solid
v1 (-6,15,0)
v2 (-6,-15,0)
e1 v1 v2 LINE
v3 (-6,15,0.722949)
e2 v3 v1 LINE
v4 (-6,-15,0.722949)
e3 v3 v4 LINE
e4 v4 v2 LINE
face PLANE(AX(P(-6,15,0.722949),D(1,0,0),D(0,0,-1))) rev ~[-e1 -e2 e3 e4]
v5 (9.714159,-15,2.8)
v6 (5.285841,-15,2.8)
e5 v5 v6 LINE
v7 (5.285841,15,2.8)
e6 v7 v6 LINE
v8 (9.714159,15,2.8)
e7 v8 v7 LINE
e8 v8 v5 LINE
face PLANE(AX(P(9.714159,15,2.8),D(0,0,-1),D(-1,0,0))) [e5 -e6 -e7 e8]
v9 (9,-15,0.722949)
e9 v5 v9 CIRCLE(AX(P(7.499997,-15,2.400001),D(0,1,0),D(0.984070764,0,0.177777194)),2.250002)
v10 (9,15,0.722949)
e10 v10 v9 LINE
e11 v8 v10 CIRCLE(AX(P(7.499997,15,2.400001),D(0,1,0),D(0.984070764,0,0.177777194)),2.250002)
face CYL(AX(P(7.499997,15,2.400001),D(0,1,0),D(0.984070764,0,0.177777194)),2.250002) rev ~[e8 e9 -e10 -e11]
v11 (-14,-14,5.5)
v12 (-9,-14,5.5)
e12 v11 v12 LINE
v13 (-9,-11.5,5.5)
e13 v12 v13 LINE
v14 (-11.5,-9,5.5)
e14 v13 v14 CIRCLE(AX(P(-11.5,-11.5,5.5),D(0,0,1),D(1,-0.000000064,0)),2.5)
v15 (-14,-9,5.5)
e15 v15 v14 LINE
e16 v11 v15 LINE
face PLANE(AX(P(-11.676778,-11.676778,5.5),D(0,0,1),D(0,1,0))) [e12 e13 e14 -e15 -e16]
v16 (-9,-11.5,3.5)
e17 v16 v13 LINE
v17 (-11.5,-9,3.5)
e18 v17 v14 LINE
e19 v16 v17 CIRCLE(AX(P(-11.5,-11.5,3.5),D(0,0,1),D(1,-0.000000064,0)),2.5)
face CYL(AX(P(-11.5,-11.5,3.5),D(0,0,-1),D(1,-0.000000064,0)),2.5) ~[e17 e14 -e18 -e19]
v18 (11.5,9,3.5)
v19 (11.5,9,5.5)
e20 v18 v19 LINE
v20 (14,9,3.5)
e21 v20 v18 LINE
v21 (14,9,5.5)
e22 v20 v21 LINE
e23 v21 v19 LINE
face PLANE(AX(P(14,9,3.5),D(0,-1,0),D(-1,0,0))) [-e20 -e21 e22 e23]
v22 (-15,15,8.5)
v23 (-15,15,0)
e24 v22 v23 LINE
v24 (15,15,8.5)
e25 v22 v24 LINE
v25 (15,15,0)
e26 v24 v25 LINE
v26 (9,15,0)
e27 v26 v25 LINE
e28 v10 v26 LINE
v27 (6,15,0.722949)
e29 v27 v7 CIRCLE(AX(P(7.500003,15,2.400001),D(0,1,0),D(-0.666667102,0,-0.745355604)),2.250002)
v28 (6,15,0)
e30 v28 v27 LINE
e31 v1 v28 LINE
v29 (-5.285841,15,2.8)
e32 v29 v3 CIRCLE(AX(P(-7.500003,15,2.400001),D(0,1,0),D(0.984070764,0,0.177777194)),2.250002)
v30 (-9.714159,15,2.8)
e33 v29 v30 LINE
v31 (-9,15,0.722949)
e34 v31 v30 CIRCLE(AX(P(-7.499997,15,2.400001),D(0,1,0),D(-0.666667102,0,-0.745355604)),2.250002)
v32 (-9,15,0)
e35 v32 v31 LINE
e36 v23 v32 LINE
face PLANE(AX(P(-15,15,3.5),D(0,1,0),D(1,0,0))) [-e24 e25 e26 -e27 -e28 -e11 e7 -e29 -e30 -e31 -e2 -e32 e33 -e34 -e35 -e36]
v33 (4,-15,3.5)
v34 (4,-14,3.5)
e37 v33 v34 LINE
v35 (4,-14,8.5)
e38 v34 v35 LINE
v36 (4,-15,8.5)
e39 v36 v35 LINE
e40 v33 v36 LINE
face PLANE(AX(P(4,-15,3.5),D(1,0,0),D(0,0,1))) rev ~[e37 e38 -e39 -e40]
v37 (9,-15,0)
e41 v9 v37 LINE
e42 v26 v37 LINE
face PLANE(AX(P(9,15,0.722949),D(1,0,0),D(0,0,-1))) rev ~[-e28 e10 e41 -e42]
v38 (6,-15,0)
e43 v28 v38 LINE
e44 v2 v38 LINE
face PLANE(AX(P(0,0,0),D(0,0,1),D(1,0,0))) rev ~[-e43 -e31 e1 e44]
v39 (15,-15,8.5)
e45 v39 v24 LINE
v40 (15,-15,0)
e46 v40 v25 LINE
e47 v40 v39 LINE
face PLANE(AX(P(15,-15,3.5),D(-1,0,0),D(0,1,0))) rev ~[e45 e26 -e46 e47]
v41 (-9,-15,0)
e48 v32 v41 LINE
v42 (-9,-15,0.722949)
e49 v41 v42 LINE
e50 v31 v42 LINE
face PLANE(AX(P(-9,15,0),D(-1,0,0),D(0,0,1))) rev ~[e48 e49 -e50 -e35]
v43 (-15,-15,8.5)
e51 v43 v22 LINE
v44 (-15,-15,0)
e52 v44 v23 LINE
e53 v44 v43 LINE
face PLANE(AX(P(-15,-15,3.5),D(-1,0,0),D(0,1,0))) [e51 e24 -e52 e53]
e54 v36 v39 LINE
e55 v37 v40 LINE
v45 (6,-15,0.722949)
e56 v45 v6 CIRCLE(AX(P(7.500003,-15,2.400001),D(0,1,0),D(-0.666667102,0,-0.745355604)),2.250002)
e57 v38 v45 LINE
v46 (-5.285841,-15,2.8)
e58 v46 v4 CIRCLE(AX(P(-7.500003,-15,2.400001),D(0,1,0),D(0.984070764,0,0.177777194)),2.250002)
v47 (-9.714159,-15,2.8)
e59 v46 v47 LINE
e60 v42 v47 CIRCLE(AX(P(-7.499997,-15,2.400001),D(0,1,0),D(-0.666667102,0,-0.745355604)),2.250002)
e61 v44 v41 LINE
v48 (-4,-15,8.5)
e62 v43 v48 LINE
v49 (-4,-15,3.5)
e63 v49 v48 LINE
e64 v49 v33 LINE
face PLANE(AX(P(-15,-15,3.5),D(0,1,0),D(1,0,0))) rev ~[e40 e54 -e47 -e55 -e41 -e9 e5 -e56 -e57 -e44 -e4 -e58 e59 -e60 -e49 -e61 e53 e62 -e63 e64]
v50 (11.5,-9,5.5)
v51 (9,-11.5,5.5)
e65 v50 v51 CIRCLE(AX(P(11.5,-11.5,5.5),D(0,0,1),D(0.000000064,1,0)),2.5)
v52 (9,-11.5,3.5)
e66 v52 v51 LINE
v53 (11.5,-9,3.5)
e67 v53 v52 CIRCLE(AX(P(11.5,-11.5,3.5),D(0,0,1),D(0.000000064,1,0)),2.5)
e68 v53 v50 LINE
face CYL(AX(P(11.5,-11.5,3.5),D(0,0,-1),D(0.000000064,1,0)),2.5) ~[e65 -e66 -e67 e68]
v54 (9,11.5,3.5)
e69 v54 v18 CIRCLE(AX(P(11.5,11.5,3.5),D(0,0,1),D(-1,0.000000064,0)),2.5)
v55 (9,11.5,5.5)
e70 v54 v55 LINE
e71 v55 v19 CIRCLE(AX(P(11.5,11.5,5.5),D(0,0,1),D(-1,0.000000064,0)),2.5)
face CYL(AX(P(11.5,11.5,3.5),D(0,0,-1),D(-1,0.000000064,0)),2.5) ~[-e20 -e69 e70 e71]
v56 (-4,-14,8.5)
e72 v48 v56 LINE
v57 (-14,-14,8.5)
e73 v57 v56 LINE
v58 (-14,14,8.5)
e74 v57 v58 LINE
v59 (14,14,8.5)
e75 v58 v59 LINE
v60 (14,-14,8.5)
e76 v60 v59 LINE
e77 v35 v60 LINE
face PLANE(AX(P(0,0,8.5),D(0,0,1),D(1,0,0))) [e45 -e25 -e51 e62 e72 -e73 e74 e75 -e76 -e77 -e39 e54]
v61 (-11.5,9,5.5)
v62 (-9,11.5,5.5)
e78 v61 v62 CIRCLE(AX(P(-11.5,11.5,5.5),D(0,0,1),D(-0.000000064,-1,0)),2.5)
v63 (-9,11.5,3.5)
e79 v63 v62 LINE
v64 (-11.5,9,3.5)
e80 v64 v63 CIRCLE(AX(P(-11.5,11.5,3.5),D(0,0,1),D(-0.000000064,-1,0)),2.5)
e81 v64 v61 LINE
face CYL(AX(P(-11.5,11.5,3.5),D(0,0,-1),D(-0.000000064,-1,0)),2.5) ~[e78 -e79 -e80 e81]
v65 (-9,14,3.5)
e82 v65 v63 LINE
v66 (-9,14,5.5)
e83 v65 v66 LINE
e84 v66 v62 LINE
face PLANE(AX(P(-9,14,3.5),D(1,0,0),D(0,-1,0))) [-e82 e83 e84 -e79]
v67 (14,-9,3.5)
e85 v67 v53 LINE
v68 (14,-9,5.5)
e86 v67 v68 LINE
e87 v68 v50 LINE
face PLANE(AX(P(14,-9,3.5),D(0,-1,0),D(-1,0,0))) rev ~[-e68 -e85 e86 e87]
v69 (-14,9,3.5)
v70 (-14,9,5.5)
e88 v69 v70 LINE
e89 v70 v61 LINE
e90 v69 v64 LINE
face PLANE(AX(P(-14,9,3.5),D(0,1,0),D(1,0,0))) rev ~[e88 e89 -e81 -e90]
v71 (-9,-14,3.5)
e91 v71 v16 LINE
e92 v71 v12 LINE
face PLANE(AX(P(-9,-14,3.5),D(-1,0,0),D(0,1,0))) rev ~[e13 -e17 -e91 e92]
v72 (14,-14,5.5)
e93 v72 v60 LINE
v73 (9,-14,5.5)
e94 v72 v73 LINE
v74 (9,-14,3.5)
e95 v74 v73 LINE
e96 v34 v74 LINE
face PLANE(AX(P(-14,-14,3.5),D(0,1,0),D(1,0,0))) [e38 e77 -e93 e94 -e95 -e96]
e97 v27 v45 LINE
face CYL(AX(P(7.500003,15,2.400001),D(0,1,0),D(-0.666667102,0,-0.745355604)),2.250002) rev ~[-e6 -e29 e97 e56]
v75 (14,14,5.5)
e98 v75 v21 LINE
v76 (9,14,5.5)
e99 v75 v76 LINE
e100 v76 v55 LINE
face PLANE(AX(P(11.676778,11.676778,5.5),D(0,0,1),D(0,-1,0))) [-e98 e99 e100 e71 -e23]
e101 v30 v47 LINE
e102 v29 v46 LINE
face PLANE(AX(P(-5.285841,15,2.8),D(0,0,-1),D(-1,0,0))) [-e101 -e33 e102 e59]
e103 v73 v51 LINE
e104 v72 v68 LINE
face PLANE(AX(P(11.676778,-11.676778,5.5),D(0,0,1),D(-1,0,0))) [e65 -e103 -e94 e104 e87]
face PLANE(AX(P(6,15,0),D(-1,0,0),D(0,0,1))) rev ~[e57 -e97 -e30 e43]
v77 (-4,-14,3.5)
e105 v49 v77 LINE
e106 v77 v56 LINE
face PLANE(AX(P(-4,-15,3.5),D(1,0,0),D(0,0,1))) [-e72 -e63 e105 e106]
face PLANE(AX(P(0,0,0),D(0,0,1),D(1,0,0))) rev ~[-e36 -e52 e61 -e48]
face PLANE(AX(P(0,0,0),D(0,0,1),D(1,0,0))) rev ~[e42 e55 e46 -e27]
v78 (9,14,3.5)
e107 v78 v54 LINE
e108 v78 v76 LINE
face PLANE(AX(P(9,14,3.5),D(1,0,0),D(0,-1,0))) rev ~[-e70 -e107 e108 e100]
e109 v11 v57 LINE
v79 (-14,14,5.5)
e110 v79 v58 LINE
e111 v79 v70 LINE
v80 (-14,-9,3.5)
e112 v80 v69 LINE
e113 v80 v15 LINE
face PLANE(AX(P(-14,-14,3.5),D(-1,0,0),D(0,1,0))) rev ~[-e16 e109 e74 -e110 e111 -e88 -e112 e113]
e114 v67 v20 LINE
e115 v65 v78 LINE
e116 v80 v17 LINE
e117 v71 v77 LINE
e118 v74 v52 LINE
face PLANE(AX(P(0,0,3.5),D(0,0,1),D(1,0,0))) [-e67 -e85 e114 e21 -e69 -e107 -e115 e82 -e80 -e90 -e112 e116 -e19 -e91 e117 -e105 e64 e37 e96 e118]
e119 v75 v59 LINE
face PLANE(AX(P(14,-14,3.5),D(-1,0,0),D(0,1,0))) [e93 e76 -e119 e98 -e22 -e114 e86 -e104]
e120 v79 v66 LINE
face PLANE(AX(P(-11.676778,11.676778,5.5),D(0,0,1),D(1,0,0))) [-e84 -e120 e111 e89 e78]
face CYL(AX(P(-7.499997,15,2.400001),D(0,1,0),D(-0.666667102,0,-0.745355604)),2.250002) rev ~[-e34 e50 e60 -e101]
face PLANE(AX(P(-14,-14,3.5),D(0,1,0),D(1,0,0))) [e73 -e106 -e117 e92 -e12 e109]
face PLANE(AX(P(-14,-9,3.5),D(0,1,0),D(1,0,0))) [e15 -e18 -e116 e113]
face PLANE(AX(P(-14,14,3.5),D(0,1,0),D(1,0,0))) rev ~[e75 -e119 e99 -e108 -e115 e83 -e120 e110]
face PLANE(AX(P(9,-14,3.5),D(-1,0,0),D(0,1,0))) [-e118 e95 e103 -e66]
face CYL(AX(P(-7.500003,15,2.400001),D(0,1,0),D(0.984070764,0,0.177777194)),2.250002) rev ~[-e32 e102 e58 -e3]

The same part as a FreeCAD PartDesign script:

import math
import FreeCAD as App
import Part
import Sketcher

V = App.Vector

doc = App.newDocument("Part")
body = doc.addObject("PartDesign::Body", "Body")

sketch1 = body.newObject("Sketcher::SketchObject", "Sketch")
sketch1.AttachmentSupport = (doc.getObject("XY_Plane"), [""])
sketch1.MapMode = "FlatFace"
sketch1.addGeometry([
    Part.LineSegment(V(-15, 15, 0), V(-15, -15, 0)),
    Part.LineSegment(V(-15, -15, 0), V(15, -15, 0)),
    Part.LineSegment(V(15, -15, 0), V(15, 15, 0)),
    Part.LineSegment(V(15, 15, 0), V(-15, 15, 0)),
], False)
sketch1.addConstraint([
    Sketcher.Constraint("Coincident", 0, 2, 1, 1),
    Sketcher.Constraint("Coincident", 1, 2, 2, 1),
    Sketcher.Constraint("Coincident", 2, 2, 3, 1),
    Sketcher.Constraint("Coincident", 3, 2, 0, 1),
    Sketcher.Constraint("Vertical", 0),
    Sketcher.Constraint("Horizontal", 1),
    Sketcher.Constraint("Vertical", 2),
    Sketcher.Constraint("Horizontal", 3),
    Sketcher.Constraint("Symmetric", 0, 2, 2, 2, -1, 1),
    Sketcher.Constraint("Equal", 3, 0),
    Sketcher.Constraint("DistanceX", 1, 1, 1, 2, 30.0),
])
pad1 = body.newObject("PartDesign::Pad", "Pad")
pad1.Profile = sketch1
pad1.Length = 3.5

sketch2 = body.newObject("Sketcher::SketchObject", "Sketch001")
sketch2.AttachmentSupport = (doc.getObject("XZ_Plane"), [""])
sketch2.MapMode = "FlatFace"
sketch2.AttachmentOffset = App.Placement(V(0, 0, -15), App.Rotation())
sketch2.addGeometry([
    Part.LineSegment(V(9, 0.722949, 0), V(9, 0, 0)),
    Part.LineSegment(V(9, 0, 0), V(6, 0, 0)),
    Part.LineSegment(V(6, 0, 0), V(6, 0.722949, 0)),
    Part.ArcOfCircle(Part.Circle(V(7.500003, 2.400001, 0), V(0, 0, 1), 2.250002), math.radians(169.759686), math.radians(228.189652)),
    Part.LineSegment(V(5.285841, 2.8, 0), V(9.714159, 2.8, 0)),
    Part.ArcOfCircle(Part.Circle(V(7.499997, 2.400001, 0), V(0, 0, 1), 2.250002), math.radians(-48.189652), math.radians(10.240314)),
], False)
sketch2.addConstraint([
    Sketcher.Constraint("Coincident", 0, 2, 1, 1),
    Sketcher.Constraint("Coincident", 1, 2, 2, 1),
    Sketcher.Constraint("Coincident", 2, 2, 3, 2),
    Sketcher.Constraint("Coincident", 3, 1, 4, 1),
    Sketcher.Constraint("Coincident", 4, 2, 5, 2),
    Sketcher.Constraint("Coincident", 5, 1, 0, 1),
    Sketcher.Constraint("Vertical", 0),
    Sketcher.Constraint("Horizontal", 1),
    Sketcher.Constraint("Vertical", 2),
    Sketcher.Constraint("Horizontal", 4),
    Sketcher.Constraint("Coincident", 5, 3, 3, 3),
    Sketcher.Constraint("Equal", 3, 5),
    Sketcher.Constraint("PointOnObject", 0, 2, -1),
    Sketcher.Constraint("Horizontal", 2, 2, 5, 1),
    Sketcher.Constraint("DistanceX", 1, 2, 1, 1, 3.0),
    Sketcher.Constraint("DistanceX", -1, 1, 0, 2, 9.0),
    Sketcher.Constraint("DistanceY", -1, 1, 3, 3, 2.400001),
    Sketcher.Constraint("DistanceY", -1, 1, 3, 1, 2.8),
    Sketcher.Constraint("Radius", 3, 2.250002),
])
pocket1 = body.newObject("PartDesign::Pocket", "Pocket")
pocket1.Profile = sketch2
pocket1.Type = "ThroughAll"
pocket1.Reversed = True
doc.recompute()

linearpattern = body.newObject("PartDesign::LinearPattern", "LinearPattern")
linearpattern.Originals = [pocket1]
linearpattern.Direction = (doc.getObject("X_Axis"), [""])
linearpattern.Mode = "offset"
linearpattern.Offset = 15
linearpattern.Occurrences = 2
linearpattern.Reversed = True
body.Tip = linearpattern

sketch3 = body.newObject("Sketcher::SketchObject", "Sketch002")
sketch3.AttachmentSupport = (doc.getObject("XY_Plane"), [""])
sketch3.MapMode = "FlatFace"
sketch3.AttachmentOffset = App.Placement(V(0, 0, 3.5), App.Rotation())
sketch3.addGeometry([
    Part.LineSegment(V(-15, 15, 0), V(-15, -15, 0)),
    Part.LineSegment(V(-15, -15, 0), V(15, -15, 0)),
    Part.LineSegment(V(15, -15, 0), V(15, 15, 0)),
    Part.LineSegment(V(15, 15, 0), V(-15, 15, 0)),
    Part.LineSegment(V(14, -14, 0), V(-14, -14, 0)),
    Part.LineSegment(V(-14, -14, 0), V(-14, 14, 0)),
    Part.LineSegment(V(-14, 14, 0), V(14, 14, 0)),
    Part.LineSegment(V(14, 14, 0), V(14, -14, 0)),
], False)
sketch3.addConstraint([
    Sketcher.Constraint("Coincident", 0, 2, 1, 1),
    Sketcher.Constraint("Coincident", 1, 2, 2, 1),
    Sketcher.Constraint("Coincident", 2, 2, 3, 1),
    Sketcher.Constraint("Coincident", 3, 2, 0, 1),
    Sketcher.Constraint("Coincident", 4, 2, 5, 1),
    Sketcher.Constraint("Coincident", 5, 2, 6, 1),
    Sketcher.Constraint("Coincident", 6, 2, 7, 1),
    Sketcher.Constraint("Coincident", 7, 2, 4, 1),
    Sketcher.Constraint("Vertical", 0),
    Sketcher.Constraint("Horizontal", 1),
    Sketcher.Constraint("Vertical", 2),
    Sketcher.Constraint("Horizontal", 3),
    Sketcher.Constraint("Horizontal", 4),
    Sketcher.Constraint("Vertical", 5),
    Sketcher.Constraint("Horizontal", 6),
    Sketcher.Constraint("Vertical", 7),
    Sketcher.Constraint("Symmetric", 0, 2, 2, 2, -1, 1),
    Sketcher.Constraint("Symmetric", 4, 2, 6, 2, -1, 1),
    Sketcher.Constraint("Equal", 3, 0),
    Sketcher.Constraint("Equal", 6, 5),
    Sketcher.Constraint("DistanceX", 1, 1, 1, 2, 30.0),
    Sketcher.Constraint("DistanceX", 4, 2, 4, 1, 28.0),
])
pad2 = body.newObject("PartDesign::Pad", "Pad001")
pad2.Profile = sketch3
pad2.Length = 5

sketch4 = body.newObject("Sketcher::SketchObject", "Sketch003")
sketch4.AttachmentSupport = (doc.getObject("XY_Plane"), [""])
sketch4.MapMode = "FlatFace"
sketch4.AttachmentOffset = App.Placement(V(0, 0, 3.5), App.Rotation())
sketch4.addGeometry([
    Part.LineSegment(V(-14, 14, 0), V(-14, 9, 0)),
    Part.LineSegment(V(-14, 9, 0), V(-11.5, 9, 0)),
    Part.ArcOfCircle(Part.Circle(V(-11.5, 11.5, 0), V(0, 0, 1), 2.5), math.radians(-90.000004), math.radians(0.000004)),
    Part.LineSegment(V(-9, 11.5, 0), V(-9, 14, 0)),
    Part.LineSegment(V(-9, 14, 0), V(-14, 14, 0)),
], False)
sketch4.addConstraint([
    Sketcher.Constraint("Coincident", 0, 2, 1, 1),
    Sketcher.Constraint("Tangent", 1, 2, 2, 1),
    Sketcher.Constraint("Tangent", 2, 2, 3, 1),
    Sketcher.Constraint("Coincident", 3, 2, 4, 1),
    Sketcher.Constraint("Coincident", 4, 2, 0, 1),
    Sketcher.Constraint("Vertical", 0),
    Sketcher.Constraint("Horizontal", 1),
    Sketcher.Constraint("Vertical", 3),
    Sketcher.Constraint("Horizontal", 4),
    Sketcher.Constraint("Equal", 4, 0),
    Sketcher.Constraint("Radius", 2, 2.5),
    Sketcher.Constraint("DistanceX", 4, 2, 4, 1, 5.0),
    Sketcher.Constraint("DistanceX", 0, 2, -1, 1, 14.0),
    Sketcher.Constraint("DistanceY", -1, 1, 0, 2, 9.0),
])
pad3 = body.newObject("PartDesign::Pad", "Pad002")
pad3.Profile = sketch4
pad3.Length = 2
doc.recompute()

polarpattern = body.newObject("PartDesign::PolarPattern", "PolarPattern")
polarpattern.Originals = [pad3]
polarpattern.Axis = (doc.getObject("Z_Axis"), [""])
polarpattern.Angle = 360
polarpattern.Occurrences = 4
body.Tip = polarpattern

sketch5 = body.newObject("Sketcher::SketchObject", "Sketch004")
sketch5.AttachmentSupport = (doc.getObject("XZ_Plane"), [""])
sketch5.MapMode = "FlatFace"
sketch5.AttachmentOffset = App.Placement(V(0, 0, 15), App.Rotation())
sketch5.addGeometry([
    Part.LineSegment(V(-4, 8.5, 0), V(-4, 3.5, 0)),
    Part.LineSegment(V(-4, 3.5, 0), V(4, 3.5, 0)),
    Part.LineSegment(V(4, 3.5, 0), V(4, 8.5, 0)),
    Part.LineSegment(V(4, 8.5, 0), V(-4, 8.5, 0)),
], False)
sketch5.addConstraint([
    Sketcher.Constraint("Coincident", 0, 2, 1, 1),
    Sketcher.Constraint("Coincident", 1, 2, 2, 1),
    Sketcher.Constraint("Coincident", 2, 2, 3, 1),
    Sketcher.Constraint("Coincident", 3, 2, 0, 1),
    Sketcher.Constraint("Vertical", 0),
    Sketcher.Constraint("Horizontal", 1),
    Sketcher.Constraint("Vertical", 2),
    Sketcher.Constraint("Horizontal", 3),
    Sketcher.Constraint("DistanceX", 1, 1, 1, 2, 8.0),
    Sketcher.Constraint("DistanceY", 0, 2, 0, 1, 5.0),
    Sketcher.Constraint("DistanceX", 0, 2, -1, 1, 4.0),
    Sketcher.Constraint("DistanceY", -1, 1, 0, 2, 3.5),
])
pocket2 = body.newObject("PartDesign::Pocket", "Pocket001")
pocket2.Profile = sketch5
pocket2.Length = 1

doc.recompute()
